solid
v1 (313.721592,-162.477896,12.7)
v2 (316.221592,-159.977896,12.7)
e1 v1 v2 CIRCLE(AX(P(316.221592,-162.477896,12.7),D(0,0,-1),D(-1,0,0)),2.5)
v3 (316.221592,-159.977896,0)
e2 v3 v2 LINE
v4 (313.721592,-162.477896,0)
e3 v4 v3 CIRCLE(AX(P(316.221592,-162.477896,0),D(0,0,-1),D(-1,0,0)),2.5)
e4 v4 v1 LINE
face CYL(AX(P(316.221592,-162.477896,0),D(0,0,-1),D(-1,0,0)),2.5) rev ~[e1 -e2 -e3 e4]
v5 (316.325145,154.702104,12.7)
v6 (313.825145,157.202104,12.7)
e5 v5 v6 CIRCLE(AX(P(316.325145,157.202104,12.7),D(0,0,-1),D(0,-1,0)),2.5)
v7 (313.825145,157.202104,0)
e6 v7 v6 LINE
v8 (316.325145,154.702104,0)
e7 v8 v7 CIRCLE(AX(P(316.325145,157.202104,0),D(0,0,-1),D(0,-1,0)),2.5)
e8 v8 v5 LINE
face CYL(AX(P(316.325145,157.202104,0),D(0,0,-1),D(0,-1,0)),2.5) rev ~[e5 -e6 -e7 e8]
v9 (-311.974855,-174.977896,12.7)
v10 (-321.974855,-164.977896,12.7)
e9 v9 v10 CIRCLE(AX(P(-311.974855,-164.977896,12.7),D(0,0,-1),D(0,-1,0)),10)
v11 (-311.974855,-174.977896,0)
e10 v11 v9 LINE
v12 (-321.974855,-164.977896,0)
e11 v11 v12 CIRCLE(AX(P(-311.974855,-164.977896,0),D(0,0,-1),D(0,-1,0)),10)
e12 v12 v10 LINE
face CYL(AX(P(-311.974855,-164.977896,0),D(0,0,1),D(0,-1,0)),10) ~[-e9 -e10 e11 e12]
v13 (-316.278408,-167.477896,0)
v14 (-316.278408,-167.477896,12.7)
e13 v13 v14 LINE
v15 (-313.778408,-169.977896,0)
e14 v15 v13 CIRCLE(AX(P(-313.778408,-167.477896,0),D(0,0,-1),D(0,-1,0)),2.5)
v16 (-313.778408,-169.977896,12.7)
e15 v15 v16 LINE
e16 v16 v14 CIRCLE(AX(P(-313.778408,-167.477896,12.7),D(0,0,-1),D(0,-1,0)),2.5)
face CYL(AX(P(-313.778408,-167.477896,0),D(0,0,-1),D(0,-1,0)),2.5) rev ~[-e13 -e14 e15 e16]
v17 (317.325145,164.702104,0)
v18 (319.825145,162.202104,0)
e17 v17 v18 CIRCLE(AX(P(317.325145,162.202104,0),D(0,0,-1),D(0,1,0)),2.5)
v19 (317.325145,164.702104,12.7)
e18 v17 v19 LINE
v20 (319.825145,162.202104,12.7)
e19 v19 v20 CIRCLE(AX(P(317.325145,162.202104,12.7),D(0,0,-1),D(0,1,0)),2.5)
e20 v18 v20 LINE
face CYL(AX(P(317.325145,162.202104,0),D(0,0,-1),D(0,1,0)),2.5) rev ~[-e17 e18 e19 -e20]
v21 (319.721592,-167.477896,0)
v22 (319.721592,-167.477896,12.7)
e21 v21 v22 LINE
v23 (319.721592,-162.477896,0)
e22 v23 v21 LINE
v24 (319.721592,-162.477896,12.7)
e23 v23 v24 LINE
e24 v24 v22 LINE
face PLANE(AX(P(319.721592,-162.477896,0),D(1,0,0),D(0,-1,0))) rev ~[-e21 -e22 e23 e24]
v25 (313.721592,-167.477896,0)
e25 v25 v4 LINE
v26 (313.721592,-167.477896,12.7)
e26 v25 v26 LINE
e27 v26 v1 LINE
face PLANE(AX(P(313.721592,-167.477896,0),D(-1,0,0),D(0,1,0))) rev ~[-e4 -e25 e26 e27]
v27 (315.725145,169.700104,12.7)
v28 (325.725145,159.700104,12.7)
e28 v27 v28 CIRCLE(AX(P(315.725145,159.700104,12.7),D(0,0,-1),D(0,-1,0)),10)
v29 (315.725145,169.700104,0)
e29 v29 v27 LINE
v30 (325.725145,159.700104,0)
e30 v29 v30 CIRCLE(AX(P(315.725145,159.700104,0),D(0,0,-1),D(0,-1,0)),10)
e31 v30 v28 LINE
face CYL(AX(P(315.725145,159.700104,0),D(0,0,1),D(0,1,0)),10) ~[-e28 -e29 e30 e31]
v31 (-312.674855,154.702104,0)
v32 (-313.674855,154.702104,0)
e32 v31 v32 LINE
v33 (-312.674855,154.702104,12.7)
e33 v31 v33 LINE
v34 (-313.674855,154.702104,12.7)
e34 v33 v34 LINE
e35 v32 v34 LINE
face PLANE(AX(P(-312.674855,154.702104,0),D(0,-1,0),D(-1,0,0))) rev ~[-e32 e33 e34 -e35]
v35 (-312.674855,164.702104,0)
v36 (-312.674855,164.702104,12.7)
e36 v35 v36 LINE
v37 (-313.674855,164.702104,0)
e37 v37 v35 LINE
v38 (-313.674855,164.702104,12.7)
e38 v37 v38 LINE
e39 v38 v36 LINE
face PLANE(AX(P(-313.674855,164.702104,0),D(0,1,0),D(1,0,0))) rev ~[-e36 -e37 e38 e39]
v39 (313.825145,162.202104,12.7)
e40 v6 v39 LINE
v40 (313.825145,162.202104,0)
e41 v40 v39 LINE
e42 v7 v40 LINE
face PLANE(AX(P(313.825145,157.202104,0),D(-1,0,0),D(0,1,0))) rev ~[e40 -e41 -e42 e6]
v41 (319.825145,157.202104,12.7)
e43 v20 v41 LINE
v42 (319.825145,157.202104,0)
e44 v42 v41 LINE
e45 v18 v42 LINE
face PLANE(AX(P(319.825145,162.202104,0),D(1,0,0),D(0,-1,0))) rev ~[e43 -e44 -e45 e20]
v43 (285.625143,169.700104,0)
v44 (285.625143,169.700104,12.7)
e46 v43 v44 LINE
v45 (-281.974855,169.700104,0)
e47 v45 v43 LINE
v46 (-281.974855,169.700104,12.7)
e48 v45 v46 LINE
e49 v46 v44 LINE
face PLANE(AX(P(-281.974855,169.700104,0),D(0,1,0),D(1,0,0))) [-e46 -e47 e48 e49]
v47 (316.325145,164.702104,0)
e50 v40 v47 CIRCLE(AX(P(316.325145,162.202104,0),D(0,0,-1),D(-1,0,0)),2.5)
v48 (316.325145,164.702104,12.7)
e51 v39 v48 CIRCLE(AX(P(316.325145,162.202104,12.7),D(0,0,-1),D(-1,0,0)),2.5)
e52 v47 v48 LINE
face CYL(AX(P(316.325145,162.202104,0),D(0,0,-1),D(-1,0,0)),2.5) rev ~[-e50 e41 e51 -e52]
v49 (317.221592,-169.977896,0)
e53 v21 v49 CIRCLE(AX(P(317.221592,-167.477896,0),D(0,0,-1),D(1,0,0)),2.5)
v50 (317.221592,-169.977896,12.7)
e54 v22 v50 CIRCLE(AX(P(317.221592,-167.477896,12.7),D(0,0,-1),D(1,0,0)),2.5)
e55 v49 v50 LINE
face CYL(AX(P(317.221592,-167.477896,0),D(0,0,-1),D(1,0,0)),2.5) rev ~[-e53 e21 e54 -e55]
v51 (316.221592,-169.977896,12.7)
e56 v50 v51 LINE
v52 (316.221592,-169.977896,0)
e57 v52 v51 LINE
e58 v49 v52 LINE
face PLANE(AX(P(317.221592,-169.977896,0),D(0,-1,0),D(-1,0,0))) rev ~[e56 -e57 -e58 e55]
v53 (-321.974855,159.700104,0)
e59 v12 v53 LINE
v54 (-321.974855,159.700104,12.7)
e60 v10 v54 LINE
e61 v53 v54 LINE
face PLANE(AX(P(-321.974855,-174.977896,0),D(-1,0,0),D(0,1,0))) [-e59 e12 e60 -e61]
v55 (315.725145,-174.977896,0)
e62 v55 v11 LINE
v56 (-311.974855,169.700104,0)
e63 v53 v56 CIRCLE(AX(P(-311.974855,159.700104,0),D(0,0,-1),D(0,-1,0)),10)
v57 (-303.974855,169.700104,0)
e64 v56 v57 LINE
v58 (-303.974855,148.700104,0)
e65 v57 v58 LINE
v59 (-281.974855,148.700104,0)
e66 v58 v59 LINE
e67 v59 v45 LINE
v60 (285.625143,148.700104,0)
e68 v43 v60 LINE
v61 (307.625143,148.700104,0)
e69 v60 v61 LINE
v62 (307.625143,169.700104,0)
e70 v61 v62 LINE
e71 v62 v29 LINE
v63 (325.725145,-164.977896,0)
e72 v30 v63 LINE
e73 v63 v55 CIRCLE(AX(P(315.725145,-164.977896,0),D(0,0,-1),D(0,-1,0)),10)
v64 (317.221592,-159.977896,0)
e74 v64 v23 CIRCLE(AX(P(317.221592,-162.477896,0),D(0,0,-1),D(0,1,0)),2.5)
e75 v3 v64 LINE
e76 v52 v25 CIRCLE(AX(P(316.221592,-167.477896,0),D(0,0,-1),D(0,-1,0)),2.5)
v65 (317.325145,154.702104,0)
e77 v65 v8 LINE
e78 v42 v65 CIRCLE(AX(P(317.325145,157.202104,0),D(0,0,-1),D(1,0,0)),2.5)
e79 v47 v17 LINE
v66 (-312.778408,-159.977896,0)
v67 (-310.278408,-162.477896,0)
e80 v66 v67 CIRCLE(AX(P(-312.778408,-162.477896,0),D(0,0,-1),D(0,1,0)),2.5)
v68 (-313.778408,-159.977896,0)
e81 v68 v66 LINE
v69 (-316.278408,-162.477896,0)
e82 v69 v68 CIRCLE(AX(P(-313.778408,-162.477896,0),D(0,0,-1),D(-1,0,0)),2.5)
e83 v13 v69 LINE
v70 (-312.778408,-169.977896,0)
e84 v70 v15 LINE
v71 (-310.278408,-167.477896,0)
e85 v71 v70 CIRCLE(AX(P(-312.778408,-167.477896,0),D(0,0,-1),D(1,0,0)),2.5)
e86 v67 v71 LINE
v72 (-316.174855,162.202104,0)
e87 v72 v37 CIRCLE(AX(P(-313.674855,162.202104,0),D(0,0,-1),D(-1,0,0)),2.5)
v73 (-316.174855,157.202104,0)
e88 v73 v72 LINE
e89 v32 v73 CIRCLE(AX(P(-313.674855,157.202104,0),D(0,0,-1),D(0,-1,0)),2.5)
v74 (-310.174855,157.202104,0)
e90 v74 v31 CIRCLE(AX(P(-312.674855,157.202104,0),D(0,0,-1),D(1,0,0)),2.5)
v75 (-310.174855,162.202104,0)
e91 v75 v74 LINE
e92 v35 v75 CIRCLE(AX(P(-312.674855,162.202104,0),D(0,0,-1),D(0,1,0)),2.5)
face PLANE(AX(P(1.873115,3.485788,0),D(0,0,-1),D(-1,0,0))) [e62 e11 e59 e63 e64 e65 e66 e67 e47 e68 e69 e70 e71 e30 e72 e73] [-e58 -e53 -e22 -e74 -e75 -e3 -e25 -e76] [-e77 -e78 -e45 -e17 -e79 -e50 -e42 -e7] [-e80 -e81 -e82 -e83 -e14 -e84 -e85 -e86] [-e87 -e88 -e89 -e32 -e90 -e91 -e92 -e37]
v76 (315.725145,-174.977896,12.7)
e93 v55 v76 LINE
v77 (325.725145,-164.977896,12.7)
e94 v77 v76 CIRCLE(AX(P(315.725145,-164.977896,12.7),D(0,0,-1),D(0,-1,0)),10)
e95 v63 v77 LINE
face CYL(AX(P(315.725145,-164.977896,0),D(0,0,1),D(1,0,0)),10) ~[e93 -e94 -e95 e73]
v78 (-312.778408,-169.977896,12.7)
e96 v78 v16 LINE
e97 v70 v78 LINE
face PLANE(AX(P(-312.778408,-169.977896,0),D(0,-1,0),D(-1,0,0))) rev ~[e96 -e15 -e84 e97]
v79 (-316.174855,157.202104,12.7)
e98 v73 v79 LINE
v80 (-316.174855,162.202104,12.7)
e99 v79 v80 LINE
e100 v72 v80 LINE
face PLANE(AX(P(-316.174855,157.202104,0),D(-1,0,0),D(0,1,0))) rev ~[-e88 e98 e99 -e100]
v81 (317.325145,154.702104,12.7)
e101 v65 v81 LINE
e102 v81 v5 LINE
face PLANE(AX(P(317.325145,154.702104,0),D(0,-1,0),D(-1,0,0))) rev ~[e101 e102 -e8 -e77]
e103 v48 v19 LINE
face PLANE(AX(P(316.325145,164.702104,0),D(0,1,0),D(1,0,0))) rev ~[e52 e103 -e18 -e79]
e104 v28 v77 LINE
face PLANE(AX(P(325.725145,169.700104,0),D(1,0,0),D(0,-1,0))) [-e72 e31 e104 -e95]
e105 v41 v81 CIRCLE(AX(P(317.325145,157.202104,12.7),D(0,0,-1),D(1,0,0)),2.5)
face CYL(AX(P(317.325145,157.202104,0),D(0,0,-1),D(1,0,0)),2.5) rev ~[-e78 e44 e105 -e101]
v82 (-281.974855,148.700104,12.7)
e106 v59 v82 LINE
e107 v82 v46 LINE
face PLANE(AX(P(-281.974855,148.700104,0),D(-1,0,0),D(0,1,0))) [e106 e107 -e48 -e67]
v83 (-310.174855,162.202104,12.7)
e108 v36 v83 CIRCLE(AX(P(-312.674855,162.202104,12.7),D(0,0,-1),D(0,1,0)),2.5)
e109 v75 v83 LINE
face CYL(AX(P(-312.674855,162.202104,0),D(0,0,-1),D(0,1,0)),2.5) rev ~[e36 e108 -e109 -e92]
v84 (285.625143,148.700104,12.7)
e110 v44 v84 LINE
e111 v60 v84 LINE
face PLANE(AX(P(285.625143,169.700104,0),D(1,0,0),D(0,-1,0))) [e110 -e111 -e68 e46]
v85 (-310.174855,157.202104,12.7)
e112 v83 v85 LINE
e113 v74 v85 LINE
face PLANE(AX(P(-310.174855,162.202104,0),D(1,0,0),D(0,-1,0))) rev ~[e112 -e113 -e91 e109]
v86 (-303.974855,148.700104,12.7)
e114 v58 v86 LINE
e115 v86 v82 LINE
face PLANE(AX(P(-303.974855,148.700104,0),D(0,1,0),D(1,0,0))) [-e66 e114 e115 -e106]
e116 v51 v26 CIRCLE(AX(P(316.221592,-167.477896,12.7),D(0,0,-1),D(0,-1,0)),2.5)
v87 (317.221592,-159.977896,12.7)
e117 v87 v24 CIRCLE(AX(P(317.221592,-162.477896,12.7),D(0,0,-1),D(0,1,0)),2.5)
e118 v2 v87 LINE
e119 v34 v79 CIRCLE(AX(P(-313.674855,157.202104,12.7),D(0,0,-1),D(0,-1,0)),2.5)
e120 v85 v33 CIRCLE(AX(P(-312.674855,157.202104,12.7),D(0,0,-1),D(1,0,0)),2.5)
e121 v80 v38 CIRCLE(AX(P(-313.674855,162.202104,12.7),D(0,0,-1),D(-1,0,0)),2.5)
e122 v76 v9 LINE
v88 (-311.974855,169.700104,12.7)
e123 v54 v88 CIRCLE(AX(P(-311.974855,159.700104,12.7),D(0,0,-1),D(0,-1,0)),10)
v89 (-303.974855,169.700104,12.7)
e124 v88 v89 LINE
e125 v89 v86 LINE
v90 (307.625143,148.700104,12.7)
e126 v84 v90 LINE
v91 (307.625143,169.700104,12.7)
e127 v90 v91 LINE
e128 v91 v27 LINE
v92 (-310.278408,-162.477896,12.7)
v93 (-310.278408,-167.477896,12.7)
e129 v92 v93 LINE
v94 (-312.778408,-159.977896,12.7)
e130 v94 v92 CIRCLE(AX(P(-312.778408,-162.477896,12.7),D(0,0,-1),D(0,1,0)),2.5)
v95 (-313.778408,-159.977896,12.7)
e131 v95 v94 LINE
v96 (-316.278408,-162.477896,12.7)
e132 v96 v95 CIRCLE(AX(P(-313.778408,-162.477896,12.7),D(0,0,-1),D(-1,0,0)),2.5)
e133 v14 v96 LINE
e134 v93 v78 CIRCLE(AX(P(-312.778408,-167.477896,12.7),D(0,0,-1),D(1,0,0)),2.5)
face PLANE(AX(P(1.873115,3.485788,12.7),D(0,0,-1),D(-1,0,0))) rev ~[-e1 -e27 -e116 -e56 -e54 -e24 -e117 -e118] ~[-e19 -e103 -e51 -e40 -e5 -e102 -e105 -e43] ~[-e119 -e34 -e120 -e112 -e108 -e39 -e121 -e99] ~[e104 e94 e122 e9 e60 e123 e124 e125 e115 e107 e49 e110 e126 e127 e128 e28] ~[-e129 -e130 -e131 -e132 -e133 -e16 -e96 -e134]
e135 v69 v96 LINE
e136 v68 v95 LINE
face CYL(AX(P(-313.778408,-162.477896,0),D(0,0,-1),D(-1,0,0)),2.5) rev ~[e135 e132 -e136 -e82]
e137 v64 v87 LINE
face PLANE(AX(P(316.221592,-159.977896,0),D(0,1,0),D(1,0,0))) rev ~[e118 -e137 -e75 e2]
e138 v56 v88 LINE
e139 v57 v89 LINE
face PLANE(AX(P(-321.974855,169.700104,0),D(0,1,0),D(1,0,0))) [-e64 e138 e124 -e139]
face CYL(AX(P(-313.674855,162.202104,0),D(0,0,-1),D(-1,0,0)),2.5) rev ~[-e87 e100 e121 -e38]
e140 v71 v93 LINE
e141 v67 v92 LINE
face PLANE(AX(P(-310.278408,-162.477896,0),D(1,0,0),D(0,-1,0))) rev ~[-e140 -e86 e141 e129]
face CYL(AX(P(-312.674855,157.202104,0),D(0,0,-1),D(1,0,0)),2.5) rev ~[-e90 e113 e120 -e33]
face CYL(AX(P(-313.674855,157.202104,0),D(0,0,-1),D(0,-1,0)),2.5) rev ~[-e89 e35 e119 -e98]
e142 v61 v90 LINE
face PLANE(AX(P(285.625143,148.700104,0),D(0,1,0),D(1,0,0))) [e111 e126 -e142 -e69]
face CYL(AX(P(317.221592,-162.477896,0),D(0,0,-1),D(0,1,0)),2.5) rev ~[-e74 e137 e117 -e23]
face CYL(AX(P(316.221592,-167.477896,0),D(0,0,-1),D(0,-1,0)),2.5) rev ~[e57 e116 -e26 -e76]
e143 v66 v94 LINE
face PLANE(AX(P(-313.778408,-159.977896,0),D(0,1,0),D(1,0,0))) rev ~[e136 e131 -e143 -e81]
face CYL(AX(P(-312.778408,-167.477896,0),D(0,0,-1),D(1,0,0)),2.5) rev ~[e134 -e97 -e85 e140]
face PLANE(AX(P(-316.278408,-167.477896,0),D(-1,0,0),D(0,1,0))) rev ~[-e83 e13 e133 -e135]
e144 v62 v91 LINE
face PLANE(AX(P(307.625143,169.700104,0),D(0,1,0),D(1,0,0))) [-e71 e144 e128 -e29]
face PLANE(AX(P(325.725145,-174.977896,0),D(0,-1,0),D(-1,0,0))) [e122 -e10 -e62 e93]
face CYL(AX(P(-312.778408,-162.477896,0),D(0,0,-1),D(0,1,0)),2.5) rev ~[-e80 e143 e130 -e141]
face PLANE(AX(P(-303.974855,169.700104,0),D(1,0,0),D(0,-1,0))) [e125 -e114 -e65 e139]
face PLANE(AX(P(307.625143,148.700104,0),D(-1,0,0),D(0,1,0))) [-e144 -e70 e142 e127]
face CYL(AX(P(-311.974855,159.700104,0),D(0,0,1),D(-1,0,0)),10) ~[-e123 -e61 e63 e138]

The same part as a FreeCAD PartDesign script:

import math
import FreeCAD as App
import Part
import Sketcher

V = App.Vector


def edges_at(feature, points):
    """Names of the edges that pass closest to the given points."""
    edges = feature.Shape.Edges
    near = lambda p: min(range(len(edges)), key=lambda i: edges[i].distToShape(Part.Vertex(*p))[0])
    return sorted({f"Edge{near(p) + 1}" for p in points})

doc = App.newDocument("Part")
body = doc.addObject("PartDesign::Body", "Body")

sketch1 = body.newObject("Sketcher::SketchObject", "Sketch")
sketch1.AttachmentSupport = (doc.getObject("XY_Plane"), [""])
sketch1.MapMode = "FlatFace"
sketch1.addGeometry([
    Part.LineSegment(V(325.7, 169.7, 0), V(307.6, 169.7, 0)),
    Part.LineSegment(V(307.6, 169.7, 0), V(307.6, 148.7, 0)),
    Part.LineSegment(V(307.6, 148.7, 0), V(285.6, 148.7, 0)),
    Part.LineSegment(V(285.6, 148.7, 0), V(285.6, 169.7, 0)),
    Part.LineSegment(V(285.6, 169.7, 0), V(-282, 169.7, 0)),
    Part.LineSegment(V(-282, 169.7, 0), V(-282, 148.7, 0)),
    Part.LineSegment(V(-282, 148.7, 0), V(-304, 148.7, 0)),
    Part.LineSegment(V(-304, 148.7, 0), V(-304, 169.7, 0)),
    Part.LineSegment(V(-304, 169.7, 0), V(-322, 169.7, 0)),
    Part.LineSegment(V(-322, 169.7, 0), V(-322, -175, 0)),
    Part.LineSegment(V(-322, -175, 0), V(325.7, -175, 0)),
    Part.LineSegment(V(325.7, -175, 0), V(325.7, 169.7, 0)),
    Part.LineSegment(V(317.2, -170, 0), V(316.2, -170, 0)),
    Part.ArcOfCircle(Part.Circle(V(316.2, -167.5, 0), V(0, 0, 1), 2.5), math.radians(180), math.radians(270)),
    Part.LineSegment(V(313.7, -167.5, 0), V(313.7, -162.5, 0)),
    Part.ArcOfCircle(Part.Circle(V(316.2, -162.5, 0), V(0, 0, 1), 2.5), math.radians(90), math.radians(180)),
    Part.LineSegment(V(316.2, -160, 0), V(317.2, -160, 0)),
    Part.ArcOfCircle(Part.Circle(V(317.2, -162.5, 0), V(0, 0, 1), 2.5), math.radians(0), math.radians(90)),
    Part.LineSegment(V(319.7, -162.5, 0), V(319.7, -167.5, 0)),
    Part.ArcOfCircle(Part.Circle(V(317.2, -167.5, 0), V(0, 0, 1), 2.5), math.radians(-90), math.radians(0)),
    Part.LineSegment(V(-312.8, -170, 0), V(-313.8, -170, 0)),
    Part.ArcOfCircle(Part.Circle(V(-313.8, -167.5, 0), V(0, 0, 1), 2.5), math.radians(180), math.radians(270)),
    Part.LineSegment(V(-316.3, -167.5, 0), V(-316.3, -162.5, 0)),
    Part.ArcOfCircle(Part.Circle(V(-313.8, -162.5, 0), V(0, 0, 1), 2.5), math.radians(90), math.radians(180)),
    Part.LineSegment(V(-313.8, -160, 0), V(-312.8, -160, 0)),
    Part.ArcOfCircle(Part.Circle(V(-312.8, -162.5, 0), V(0, 0, 1), 2.5), math.radians(0), math.radians(90)),
    Part.LineSegment(V(-310.3, -162.5, 0), V(-310.3, -167.5, 0)),
    Part.ArcOfCircle(Part.Circle(V(-312.8, -167.5, 0), V(0, 0, 1), 2.5), math.radians(-90), math.radians(0)),
    Part.LineSegment(V(317.3, 154.7, 0), V(316.3, 154.7, 0)),
    Part.ArcOfCircle(Part.Circle(V(316.3, 157.2, 0), V(0, 0, 1), 2.5), math.radians(180), math.radians(270)),
    Part.LineSegment(V(313.8, 157.2, 0), V(313.8, 162.2, 0)),
    Part.ArcOfCircle(Part.Circle(V(316.3, 162.2, 0), V(0, 0, 1), 2.5), math.radians(90), math.radians(180)),
    Part.LineSegment(V(316.3, 164.7, 0), V(317.3, 164.7, 0)),
    Part.ArcOfCircle(Part.Circle(V(317.3, 162.2, 0), V(0, 0, 1), 2.5), math.radians(0), math.radians(90)),
    Part.LineSegment(V(319.8, 162.2, 0), V(319.8, 157.2, 0)),
    Part.ArcOfCircle(Part.Circle(V(317.3, 157.2, 0), V(0, 0, 1), 2.5), math.radians(-90), math.radians(0)),
    Part.LineSegment(V(-312.7, 154.7, 0), V(-313.7, 154.7, 0)),
    Part.ArcOfCircle(Part.Circle(V(-313.7, 157.2, 0), V(0, 0, 1), 2.5), math.radians(180), math.radians(270)),
    Part.LineSegment(V(-316.2, 157.2, 0), V(-316.2, 162.2, 0)),
    Part.ArcOfCircle(Part.Circle(V(-313.7, 162.2, 0), V(0, 0, 1), 2.5), math.radians(90), math.radians(180)),
    Part.LineSegment(V(-313.7, 164.7, 0), V(-312.7, 164.7, 0)),
    Part.ArcOfCircle(Part.Circle(V(-312.7, 162.2, 0), V(0, 0, 1), 2.5), math.radians(0), math.radians(90)),
    Part.LineSegment(V(-310.2, 162.2, 0), V(-310.2, 157.2, 0)),
    Part.ArcOfCircle(Part.Circle(V(-312.7, 157.2, 0), V(0, 0, 1), 2.5), math.radians(-90), math.radians(0)),
], False)
sketch1.addConstraint([
    Sketcher.Constraint("Coincident", 0, 2, 1, 1),
    Sketcher.Constraint("Coincident", 1, 2, 2, 1),
    Sketcher.Constraint("Coincident", 2, 2, 3, 1),
    Sketcher.Constraint("Coincident", 3, 2, 4, 1),
    Sketcher.Constraint("Coincident", 4, 2, 5, 1),
    Sketcher.Constraint("Coincident", 5, 2, 6, 1),
    Sketcher.Constraint("Coincident", 6, 2, 7, 1),
    Sketcher.Constraint("Coincident", 7, 2, 8, 1),
    Sketcher.Constraint("Coincident", 8, 2, 9, 1),
    Sketcher.Constraint("Coincident", 9, 2, 10, 1),
    Sketcher.Constraint("Coincident", 10, 2, 11, 1),
    Sketcher.Constraint("Coincident", 11, 2, 0, 1),
    Sketcher.Constraint("Tangent", 12, 2, 13, 2),
    Sketcher.Constraint("Tangent", 13, 1, 14, 1),
    Sketcher.Constraint("Tangent", 14, 2, 15, 2),
    Sketcher.Constraint("Tangent", 15, 1, 16, 1),
    Sketcher.Constraint("Tangent", 16, 2, 17, 2),
    Sketcher.Constraint("Tangent", 17, 1, 18, 1),
    Sketcher.Constraint("Tangent", 18, 2, 19, 2),
    Sketcher.Constraint("Tangent", 19, 1, 12, 1),
    Sketcher.Constraint("Tangent", 20, 2, 21, 2),
    Sketcher.Constraint("Tangent", 21, 1, 22, 1),
    Sketcher.Constraint("Tangent", 22, 2, 23, 2),
    Sketcher.Constraint("Tangent", 23, 1, 24, 1),
    Sketcher.Constraint("Tangent", 24, 2, 25, 2),
    Sketcher.Constraint("Tangent", 25, 1, 26, 1),
    Sketcher.Constraint("Tangent", 26, 2, 27, 2),
    Sketcher.Constraint("Tangent", 27, 1, 20, 1),
    Sketcher.Constraint("Tangent", 28, 2, 29, 2),
    Sketcher.Constraint("Tangent", 29, 1, 30, 1),
    Sketcher.Constraint("Tangent", 30, 2, 31, 2),
    Sketcher.Constraint("Tangent", 31, 1, 32, 1),
    Sketcher.Constraint("Tangent", 32, 2, 33, 2),
    Sketcher.Constraint("Tangent", 33, 1, 34, 1),
    Sketcher.Constraint("Tangent", 34, 2, 35, 2),
    Sketcher.Constraint("Tangent", 35, 1, 28, 1),
    Sketcher.Constraint("Tangent", 36, 2, 37, 2),
    Sketcher.Constraint("Tangent", 37, 1, 38, 1),
    Sketcher.Constraint("Tangent", 38, 2, 39, 2),
    Sketcher.Constraint("Tangent", 39, 1, 40, 1),
    Sketcher.Constraint("Tangent", 40, 2, 41, 2),
    Sketcher.Constraint("Tangent", 41, 1, 42, 1),
    Sketcher.Constraint("Tangent", 42, 2, 43, 2),
    Sketcher.Constraint("Tangent", 43, 1, 36, 1),
    Sketcher.Constraint("Horizontal", 0),
    Sketcher.Constraint("Vertical", 1),
    Sketcher.Constraint("Horizontal", 2),
    Sketcher.Constraint("Vertical", 3),
    Sketcher.Constraint("Horizontal", 4),
    Sketcher.Constraint("Vertical", 5),
    Sketcher.Constraint("Horizontal", 6),
    Sketcher.Constraint("Vertical", 7),
    Sketcher.Constraint("Horizontal", 8),
    Sketcher.Constraint("Vertical", 9),
    Sketcher.Constraint("Horizontal", 10),
    Sketcher.Constraint("Vertical", 11),
    Sketcher.Constraint("Horizontal", 12),
    Sketcher.Constraint("Vertical", 14),
    Sketcher.Constraint("Horizontal", 16),
    Sketcher.Constraint("Vertical", 18),
    Sketcher.Constraint("Horizontal", 20),
    Sketcher.Constraint("Vertical", 22),
    Sketcher.Constraint("Horizontal", 24),
    Sketcher.Constraint("Vertical", 26),
    Sketcher.Constraint("Horizontal", 28),
    Sketcher.Constraint("Vertical", 30),
    Sketcher.Constraint("Horizontal", 32),
    Sketcher.Constraint("Vertical", 34),
    Sketcher.Constraint("Horizontal", 36),
    Sketcher.Constraint("Vertical", 38),
    Sketcher.Constraint("Horizontal", 40),
    Sketcher.Constraint("Vertical", 42),
    Sketcher.Constraint("Equal", 13, 15),
    Sketcher.Constraint("Equal", 15, 17),
    Sketcher.Constraint("Equal", 17, 19),
    Sketcher.Constraint("Equal", 19, 21),
    Sketcher.Constraint("Equal", 21, 23),
    Sketcher.Constraint("Equal", 23, 25),
    Sketcher.Constraint("Equal", 25, 27),
    Sketcher.Constraint("Equal", 27, 29),
    Sketcher.Constraint("Equal", 29, 31),
    Sketcher.Constraint("Equal", 31, 33),
    Sketcher.Constraint("Equal", 33, 35),
    Sketcher.Constraint("Equal", 35, 37),
    Sketcher.Constraint("Equal", 37, 39),
    Sketcher.Constraint("Equal", 39, 41),
    Sketcher.Constraint("Equal", 41, 43),
    Sketcher.Constraint("Horizontal", 19, 3, 21, 3),
    Sketcher.Constraint("Horizontal", 17, 3, 23, 3),
    Sketcher.Constraint("Horizontal", 35, 3, 37, 3),
    Sketcher.Constraint("Horizontal", 33, 3, 39, 3),
    Sketcher.Constraint("Horizontal", 0, 2, 3, 2),
    Sketcher.Constraint("Horizontal", 2, 2, 5, 2),
    Sketcher.Constraint("Horizontal", 4, 2, 7, 2),
    Sketcher.Constraint("Equal", 2, 6),
    Sketcher.Constraint("Equal", 16, 20),
    Sketcher.Constraint("Equal", 24, 28),
    Sketcher.Constraint("Equal", 32, 36),
    Sketcher.Constraint("Equal", 26, 30),
    Sketcher.Constraint("Radius", 13, 2.5),
    Sketcher.Constraint("DistanceX", 2, 2, 2, 1, 22.0),
    Sketcher.Constraint("DistanceX", 8, 2, 8, 1, 18.0),
    Sketcher.Constraint("DistanceX", 12, 2, 12, 1, 1.0),
    Sketcher.Constraint("DistanceY", 1, 2, 1, 1, 21.0),
    Sketcher.Constraint("DistanceY", 14, 1, 14, 2, 5.0),
    Sketcher.Constraint("DistanceX", 0, 2, 0, 1, 18.100002),
    Sketcher.Constraint("DistanceX", 4, 2, 4, 1, 567.599998),
    Sketcher.Constraint("DistanceX", 21, 3, 13, 3, 630.0),
    Sketcher.Constraint("DistanceX", 37, 3, 29, 3, 630.0),
    Sketcher.Constraint("DistanceY", 10, 2, 12, 2, 5.0),
    Sketcher.Constraint("DistanceX", 0, 2, 31, 3, 8.700002),
    Sketcher.Constraint("DistanceY", 9, 2, 9, 1, 344.678),
    Sketcher.Constraint("DistanceY", 15, 3, 29, 3, 319.68),
    Sketcher.Constraint("DistanceX", -1, 1, 13, 3, 316.221592),
    Sketcher.Constraint("DistanceX", 0, 2, 15, 3, 8.596448),
    Sketcher.Constraint("DistanceY", 13, 3, -1, 1, 167.477896),
])
pad1 = body.newObject("PartDesign::Pad", "Pad")
pad1.Profile = sketch1
pad1.Length = 12.7
doc.recompute()

fillet = body.newObject("PartDesign::Fillet", "Fillet")
fillet.Base = (pad1, edges_at(pad1, [
    (-321.975, 169.7, 6.35),
    (-321.975, -174.978, 6.35),
    (325.725, -174.978, 6.35),
    (325.725, 169.7, 6.35),
]))
fillet.Radius = 10

doc.recompute()
